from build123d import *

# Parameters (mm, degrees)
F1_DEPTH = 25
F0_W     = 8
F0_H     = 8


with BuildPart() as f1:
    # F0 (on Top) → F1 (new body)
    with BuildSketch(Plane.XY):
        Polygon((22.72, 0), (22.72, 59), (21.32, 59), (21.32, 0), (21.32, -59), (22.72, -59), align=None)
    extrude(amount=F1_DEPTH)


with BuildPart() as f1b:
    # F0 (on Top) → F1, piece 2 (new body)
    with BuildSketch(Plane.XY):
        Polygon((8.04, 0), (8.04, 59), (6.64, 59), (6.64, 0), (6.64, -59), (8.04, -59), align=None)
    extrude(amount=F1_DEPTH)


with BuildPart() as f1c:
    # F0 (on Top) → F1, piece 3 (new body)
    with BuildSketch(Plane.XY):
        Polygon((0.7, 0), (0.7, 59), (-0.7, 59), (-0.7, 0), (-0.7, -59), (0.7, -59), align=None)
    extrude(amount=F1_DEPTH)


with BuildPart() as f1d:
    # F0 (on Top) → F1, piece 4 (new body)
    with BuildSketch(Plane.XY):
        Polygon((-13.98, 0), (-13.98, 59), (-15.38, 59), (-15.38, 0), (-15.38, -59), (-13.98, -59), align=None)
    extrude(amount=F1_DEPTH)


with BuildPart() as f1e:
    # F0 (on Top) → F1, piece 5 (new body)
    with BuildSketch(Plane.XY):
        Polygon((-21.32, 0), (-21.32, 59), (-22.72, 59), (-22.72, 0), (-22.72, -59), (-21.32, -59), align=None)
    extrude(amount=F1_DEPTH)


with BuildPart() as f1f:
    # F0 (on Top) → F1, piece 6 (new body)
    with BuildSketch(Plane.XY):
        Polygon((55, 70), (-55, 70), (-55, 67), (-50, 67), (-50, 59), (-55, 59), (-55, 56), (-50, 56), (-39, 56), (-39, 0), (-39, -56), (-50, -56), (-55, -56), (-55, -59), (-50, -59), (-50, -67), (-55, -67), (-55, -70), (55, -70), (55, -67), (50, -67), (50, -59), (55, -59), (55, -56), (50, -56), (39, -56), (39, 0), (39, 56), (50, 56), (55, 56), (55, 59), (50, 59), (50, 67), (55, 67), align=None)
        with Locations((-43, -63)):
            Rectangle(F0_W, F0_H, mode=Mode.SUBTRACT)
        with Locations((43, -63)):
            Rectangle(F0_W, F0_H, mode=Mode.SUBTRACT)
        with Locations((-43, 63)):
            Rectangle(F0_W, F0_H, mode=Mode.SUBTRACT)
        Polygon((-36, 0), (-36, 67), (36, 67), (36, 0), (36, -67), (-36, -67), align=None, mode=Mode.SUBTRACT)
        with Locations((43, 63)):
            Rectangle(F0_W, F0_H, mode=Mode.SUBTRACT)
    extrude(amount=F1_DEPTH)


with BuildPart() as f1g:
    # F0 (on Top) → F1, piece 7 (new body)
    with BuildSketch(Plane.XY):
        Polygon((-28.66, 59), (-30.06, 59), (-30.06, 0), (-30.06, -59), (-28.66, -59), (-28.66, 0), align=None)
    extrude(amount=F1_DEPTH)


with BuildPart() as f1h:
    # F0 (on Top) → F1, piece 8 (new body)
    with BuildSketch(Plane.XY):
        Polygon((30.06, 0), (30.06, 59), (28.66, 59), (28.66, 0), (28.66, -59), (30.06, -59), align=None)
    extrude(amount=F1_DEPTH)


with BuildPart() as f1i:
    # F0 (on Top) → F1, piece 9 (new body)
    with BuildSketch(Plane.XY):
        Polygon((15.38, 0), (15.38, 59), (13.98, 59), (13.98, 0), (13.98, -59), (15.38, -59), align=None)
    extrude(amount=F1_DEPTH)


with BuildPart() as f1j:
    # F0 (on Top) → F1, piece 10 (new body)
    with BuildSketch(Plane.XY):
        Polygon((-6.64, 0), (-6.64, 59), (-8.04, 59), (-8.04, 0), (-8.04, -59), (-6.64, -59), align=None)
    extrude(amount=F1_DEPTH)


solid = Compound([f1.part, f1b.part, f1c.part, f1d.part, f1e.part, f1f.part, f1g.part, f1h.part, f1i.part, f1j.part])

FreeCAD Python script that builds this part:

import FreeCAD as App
import Part
import Sketcher

V = App.Vector
Q = App.Units.Quantity


def add_polygon(sketch, points):
    """Adds a closed chain of lines whose ends are joined by coincident constraints."""
    first, n = sketch.GeometryCount, len(points)
    for a, b in zip(points, points[1:] + points[:1]):
        sketch.addGeometry(Part.LineSegment(App.Vector(*a, 0), App.Vector(*b, 0)), False)
    for i in range(n):
        sketch.addConstraint(Sketcher.Constraint("Coincident", first + i, 2, first + (i + 1) % n, 1))

doc = App.newDocument("Part")
body = doc.addObject("PartDesign::Body", "Body")

# Sketch on XY plane
sketch1 = body.newObject("Sketcher::SketchObject", "Sketch")
sketch1.AttachmentSupport = (doc.getObject("XY_Plane"), [""])
sketch1.MapMode = "FlatFace"
add_polygon(sketch1, [(22.72, 59), (21.32, 59), (21.32, -59), (22.72, -59)])  # lines 0-3
sketch1.addConstraint(Sketcher.Constraint("Horizontal", 0))
sketch1.addConstraint(Sketcher.Constraint("Vertical", 1))
sketch1.addConstraint(Sketcher.Constraint("Horizontal", 2))
sketch1.addConstraint(Sketcher.Constraint("Vertical", 3))
sketch1.addConstraint(Sketcher.Constraint("DistanceY", 1, 2, 1, 1, Q("118 mm")))
sketch1.addConstraint(Sketcher.Constraint("DistanceX", 0, 2, 0, 1, Q("1.4 mm")))
sketch1.addConstraint(Sketcher.Constraint("DistanceY", -1, 1, 0, 2, Q("59 mm")))
sketch1.addConstraint(Sketcher.Constraint("DistanceX", -1, 1, 0, 2, Q("21.32 mm")))
pad1 = body.newObject("PartDesign::Pad", "Pad")
pad1.Profile = sketch1
pad1.Length = 25
body2 = doc.addObject("PartDesign::Body", "Body001")

# Sketch on XY plane
sketch2 = body2.newObject("Sketcher::SketchObject", "Sketch001")
sketch2.AttachmentSupport = (doc.getObject("XY_Plane001"), [""])
sketch2.MapMode = "FlatFace"
add_polygon(sketch2, [(8.04, 59), (6.64, 59), (6.64, -59), (8.04, -59)])  # lines 0-3
sketch2.addConstraint(Sketcher.Constraint("Horizontal", 0))
sketch2.addConstraint(Sketcher.Constraint("Vertical", 1))
sketch2.addConstraint(Sketcher.Constraint("Horizontal", 2))
sketch2.addConstraint(Sketcher.Constraint("Vertical", 3))
sketch2.addConstraint(Sketcher.Constraint("DistanceY", 1, 2, 1, 1, Q("118 mm")))
sketch2.addConstraint(Sketcher.Constraint("DistanceX", 0, 2, 0, 1, Q("1.4 mm")))
sketch2.addConstraint(Sketcher.Constraint("DistanceY", -1, 1, 0, 2, Q("59 mm")))
sketch2.addConstraint(Sketcher.Constraint("DistanceX", -1, 1, 0, 2, Q("6.64 mm")))
pad2 = body2.newObject("PartDesign::Pad", "Pad001")
pad2.Profile = sketch2
pad2.Length = 25
body3 = doc.addObject("PartDesign::Body", "Body002")

# Sketch on XY plane
sketch3 = body3.newObject("Sketcher::SketchObject", "Sketch002")
sketch3.AttachmentSupport = (doc.getObject("XY_Plane002"), [""])
sketch3.MapMode = "FlatFace"
add_polygon(sketch3, [(0.7, 59), (-0.7, 59), (-0.7, -59), (0.7, -59)])  # lines 0-3
sketch3.addConstraint(Sketcher.Constraint("Horizontal", 0))
sketch3.addConstraint(Sketcher.Constraint("Vertical", 1))
sketch3.addConstraint(Sketcher.Constraint("Horizontal", 2))
sketch3.addConstraint(Sketcher.Constraint("Vertical", 3))
sketch3.addConstraint(Sketcher.Constraint("Symmetric", 0, 2, 2, 2, -1, 1))
sketch3.addConstraint(Sketcher.Constraint("DistanceY", 1, 2, 1, 1, Q("118 mm")))
sketch3.addConstraint(Sketcher.Constraint("DistanceX", 0, 2, 0, 1, Q("1.4 mm")))
pad3 = body3.newObject("PartDesign::Pad", "Pad002")
pad3.Profile = sketch3
pad3.Length = 25
body4 = doc.addObject("PartDesign::Body", "Body003")

# Sketch on XY plane
sketch4 = body4.newObject("Sketcher::SketchObject", "Sketch003")
sketch4.AttachmentSupport = (doc.getObject("XY_Plane003"), [""])
sketch4.MapMode = "FlatFace"
add_polygon(sketch4, [(-13.98, 59), (-15.38, 59), (-15.38, -59), (-13.98, -59)])  # lines 0-3
sketch4.addConstraint(Sketcher.Constraint("Horizontal", 0))
sketch4.addConstraint(Sketcher.Constraint("Vertical", 1))
sketch4.addConstraint(Sketcher.Constraint("Horizontal", 2))
sketch4.addConstraint(Sketcher.Constraint("Vertical", 3))
sketch4.addConstraint(Sketcher.Constraint("DistanceY", 1, 2, 1, 1, Q("118 mm")))
sketch4.addConstraint(Sketcher.Constraint("DistanceX", 0, 2, 0, 1, Q("1.4 mm")))
sketch4.addConstraint(Sketcher.Constraint("DistanceY", -1, 1, 0, 2, Q("59 mm")))
sketch4.addConstraint(Sketcher.Constraint("DistanceX", 0, 2, -1, 1, Q("15.38 mm")))
pad4 = body4.newObject("PartDesign::Pad", "Pad003")
pad4.Profile = sketch4
pad4.Length = 25
body5 = doc.addObject("PartDesign::Body", "Body004")

# Sketch on XY plane
sketch5 = body5.newObject("Sketcher::SketchObject", "Sketch004")
sketch5.AttachmentSupport = (doc.getObject("XY_Plane004"), [""])
sketch5.MapMode = "FlatFace"
add_polygon(sketch5, [(-21.32, 59), (-22.72, 59), (-22.72, -59), (-21.32, -59)])  # lines 0-3
sketch5.addConstraint(Sketcher.Constraint("Horizontal", 0))
sketch5.addConstraint(Sketcher.Constraint("Vertical", 1))
sketch5.addConstraint(Sketcher.Constraint("Horizontal", 2))
sketch5.addConstraint(Sketcher.Constraint("Vertical", 3))
sketch5.addConstraint(Sketcher.Constraint("DistanceY", 1, 2, 1, 1, Q("118 mm")))
sketch5.addConstraint(Sketcher.Constraint("DistanceX", 0, 2, 0, 1, Q("1.4 mm")))
sketch5.addConstraint(Sketcher.Constraint("DistanceY", -1, 1, 0, 2, Q("59 mm")))
sketch5.addConstraint(Sketcher.Constraint("DistanceX", 0, 2, -1, 1, Q("22.72 mm")))
pad5 = body5.newObject("PartDesign::Pad", "Pad004")
pad5.Profile = sketch5
pad5.Length = 25
body6 = doc.addObject("PartDesign::Body", "Body005")

# Sketch on XY plane
sketch6 = body6.newObject("Sketcher::SketchObject", "Sketch005")
sketch6.AttachmentSupport = (doc.getObject("XY_Plane005"), [""])
sketch6.MapMode = "FlatFace"
add_polygon(sketch6, [(55, 70), (-55, 70), (-55, 67), (-50, 67), (-50, 59), (-55, 59), (-55, 56), (-39, 56), (-39, -56), (-55, -56), (-55, -59), (-50, -59), (-50, -67), (-55, -67), (-55, -70), (55, -70), (55, -67), (50, -67), (50, -59), (55, -59), (55, -56), (39, -56), (39, 56), (55, 56), (55, 59), (50, 59), (50, 67), (55, 67)])  # lines 0-27
add_polygon(sketch6, [(-39, -67), (-47, -67), (-47, -59), (-39, -59)])  # lines 28-31
add_polygon(sketch6, [(47, -67), (39, -67), (39, -59), (47, -59)])  # lines 32-35
add_polygon(sketch6, [(-39, 59), (-47, 59), (-47, 67), (-39, 67)])  # lines 36-39
add_polygon(sketch6, [(-36, -67), (-36, 67), (36, 67), (36, -67)])  # lines 40-43
add_polygon(sketch6, [(47, 59), (39, 59), (39, 67), (47, 67)])  # lines 44-47
sketch6.addConstraint(Sketcher.Constraint("Horizontal", 0))
sketch6.addConstraint(Sketcher.Constraint("Vertical", 1))
sketch6.addConstraint(Sketcher.Constraint("Horizontal", 2))
sketch6.addConstraint(Sketcher.Constraint("Vertical", 3))
sketch6.addConstraint(Sketcher.Constraint("Horizontal", 4))
sketch6.addConstraint(Sketcher.Constraint("Vertical", 5))
sketch6.addConstraint(Sketcher.Constraint("Horizontal", 6))
sketch6.addConstraint(Sketcher.Constraint("Vertical", 7))
sketch6.addConstraint(Sketcher.Constraint("Horizontal", 8))
sketch6.addConstraint(Sketcher.Constraint("Vertical", 9))
sketch6.addConstraint(Sketcher.Constraint("Horizontal", 10))
sketch6.addConstraint(Sketcher.Constraint("Vertical", 11))
sketch6.addConstraint(Sketcher.Constraint("Horizontal", 12))
sketch6.addConstraint(Sketcher.Constraint("Vertical", 13))
sketch6.addConstraint(Sketcher.Constraint("Horizontal", 14))
sketch6.addConstraint(Sketcher.Constraint("Vertical", 15))
sketch6.addConstraint(Sketcher.Constraint("Horizontal", 16))
sketch6.addConstraint(Sketcher.Constraint("Vertical", 17))
sketch6.addConstraint(Sketcher.Constraint("Horizontal", 18))
sketch6.addConstraint(Sketcher.Constraint("Vertical", 19))
sketch6.addConstraint(Sketcher.Constraint("Horizontal", 20))
sketch6.addConstraint(Sketcher.Constraint("Vertical", 21))
sketch6.addConstraint(Sketcher.Constraint("Horizontal", 22))
sketch6.addConstraint(Sketcher.Constraint("Vertical", 23))
sketch6.addConstraint(Sketcher.Constraint("Horizontal", 24))
sketch6.addConstraint(Sketcher.Constraint("Vertical", 25))
sketch6.addConstraint(Sketcher.Constraint("Horizontal", 26))
sketch6.addConstraint(Sketcher.Constraint("Vertical", 27))
sketch6.addConstraint(Sketcher.Constraint("Horizontal", 28))
sketch6.addConstraint(Sketcher.Constraint("Vertical", 29))
sketch6.addConstraint(Sketcher.Constraint("Horizontal", 30))
sketch6.addConstraint(Sketcher.Constraint("Vertical", 31))
sketch6.addConstraint(Sketcher.Constraint("Horizontal", 32))
sketch6.addConstraint(Sketcher.Constraint("Vertical", 33))
sketch6.addConstraint(Sketcher.Constraint("Horizontal", 34))
sketch6.addConstraint(Sketcher.Constraint("Vertical", 35))
sketch6.addConstraint(Sketcher.Constraint("Horizontal", 36))
sketch6.addConstraint(Sketcher.Constraint("Vertical", 37))
sketch6.addConstraint(Sketcher.Constraint("Horizontal", 38))
sketch6.addConstraint(Sketcher.Constraint("Vertical", 39))
sketch6.addConstraint(Sketcher.Constraint("Vertical", 40))
sketch6.addConstraint(Sketcher.Constraint("Horizontal", 41))
sketch6.addConstraint(Sketcher.Constraint("Vertical", 42))
sketch6.addConstraint(Sketcher.Constraint("Horizontal", 43))
sketch6.addConstraint(Sketcher.Constraint("Horizontal", 44))
sketch6.addConstraint(Sketcher.Constraint("Vertical", 45))
sketch6.addConstraint(Sketcher.Constraint("Horizontal", 46))
sketch6.addConstraint(Sketcher.Constraint("Vertical", 47))
sketch6.addConstraint(Sketcher.Constraint("Symmetric", 0, 2, 14, 2, -1, 1))
sketch6.addConstraint(Sketcher.Constraint("Symmetric", 2, 2, 16, 2, -1, 1))
sketch6.addConstraint(Sketcher.Constraint("Symmetric", 4, 2, 18, 2, -1, 1))
sketch6.addConstraint(Sketcher.Constraint("Symmetric", 6, 2, 20, 2, -1, 1))
sketch6.addConstraint(Sketcher.Constraint("Symmetric", 8, 2, 22, 2, -1, 1))
sketch6.addConstraint(Sketcher.Constraint("Symmetric", 10, 2, 24, 2, -1, 1))
sketch6.addConstraint(Sketcher.Constraint("Symmetric", 12, 2, 26, 2, -1, 1))
sketch6.addConstraint(Sketcher.Constraint("Symmetric", 34, 2, 36, 2, -1, 1))
sketch6.addConstraint(Sketcher.Constraint("Symmetric", 32, 2, 38, 2, -1, 1))
sketch6.addConstraint(Sketcher.Constraint("Symmetric", 40, 2, 42, 2, -1, 1))
sketch6.addConstraint(Sketcher.Constraint("Symmetric", 30, 2, 44, 2, -1, 1))
sketch6.addConstraint(Sketcher.Constraint("Symmetric", 28, 2, 46, 2, -1, 1))
sketch6.addConstraint(Sketcher.Constraint("Symmetric", 12, 2, 15, 2, -2))
sketch6.addConstraint(Sketcher.Constraint("Symmetric", 10, 2, 17, 2, -2))
sketch6.addConstraint(Sketcher.Constraint("Symmetric", 8, 2, 19, 2, -2))
sketch6.addConstraint(Sketcher.Constraint("Symmetric", 31, 2, 32, 2, -2))
sketch6.addConstraint(Sketcher.Constraint("Symmetric", 29, 2, 34, 2, -2))
sketch6.addConstraint(Sketcher.Constraint("Horizontal", 16, 2, 28, 2))
sketch6.addConstraint(Sketcher.Constraint("Horizontal", 18, 2, 29, 2))
sketch6.addConstraint(Sketcher.Constraint("Horizontal", 38, 2, 40, 2))
sketch6.addConstraint(Sketcher.Constraint("Vertical", 1, 2, 4, 2))
sketch6.addConstraint(Sketcher.Constraint("Vertical", 7, 2, 30, 2))
sketch6.addConstraint(Sketcher.Constraint("Equal", 46, 3))
sketch6.addConstraint(Sketcher.Constraint("Equal", 1, 5))
sketch6.addConstraint(Sketcher.Constraint("DistanceX", 0, 2, 0, 1, Q("110 mm")))
sketch6.addConstraint(Sketcher.Constraint("DistanceX", 2, 1, 2, 2, Q("5 mm")))
sketch6.addConstraint(Sketcher.Constraint("DistanceX", 6, 1, 6, 2, Q("16 mm")))
sketch6.addConstraint(Sketcher.Constraint("DistanceX", 28, 2, 28, 1, Q("8 mm")))
sketch6.addConstraint(Sketcher.Constraint("DistanceX", 41, 1, 41, 2, Q("72 mm")))
sketch6.addConstraint(Sketcher.Constraint("DistanceY", 1, 2, 1, 1, Q("3 mm")))
sketch6.addConstraint(Sketcher.Constraint("DistanceY", 7, 2, 7, 1, Q("112 mm")))
pad6 = body6.newObject("PartDesign::Pad", "Pad005")
pad6.Profile = sketch6
pad6.Length = 25
body7 = doc.addObject("PartDesign::Body", "Body006")

# Sketch on XY plane
sketch7 = body7.newObject("Sketcher::SketchObject", "Sketch006")
sketch7.AttachmentSupport = (doc.getObject("XY_Plane006"), [""])
sketch7.MapMode = "FlatFace"
add_polygon(sketch7, [(-28.66, 59), (-30.06, 59), (-30.06, -59), (-28.66, -59)])  # lines 0-3
sketch7.addConstraint(Sketcher.Constraint("Horizontal", 0))
sketch7.addConstraint(Sketcher.Constraint("Vertical", 1))
sketch7.addConstraint(Sketcher.Constraint("Horizontal", 2))
sketch7.addConstraint(Sketcher.Constraint("Vertical", 3))
sketch7.addConstraint(Sketcher.Constraint("DistanceY", 1, 2, 1, 1, Q("118 mm")))
sketch7.addConstraint(Sketcher.Constraint("DistanceX", 0, 2, 0, 1, Q("1.4 mm")))
sketch7.addConstraint(Sketcher.Constraint("DistanceY", -1, 1, 0, 2, Q("59 mm")))
sketch7.addConstraint(Sketcher.Constraint("DistanceX", 0, 2, -1, 1, Q("30.06 mm")))
pad7 = body7.newObject("PartDesign::Pad", "Pad006")
pad7.Profile = sketch7
pad7.Length = 25
body8 = doc.addObject("PartDesign::Body", "Body007")

# Sketch on XY plane
sketch8 = body8.newObject("Sketcher::SketchObject", "Sketch007")
sketch8.AttachmentSupport = (doc.getObject("XY_Plane007"), [""])
sketch8.MapMode = "FlatFace"
add_polygon(sketch8, [(30.06, 59), (28.66, 59), (28.66, -59), (30.06, -59)])  # lines 0-3
sketch8.addConstraint(Sketcher.Constraint("Horizontal", 0))
sketch8.addConstraint(Sketcher.Constraint("Vertical", 1))
sketch8.addConstraint(Sketcher.Constraint("Horizontal", 2))
sketch8.addConstraint(Sketcher.Constraint("Vertical", 3))
sketch8.addConstraint(Sketcher.Constraint("DistanceY", 1, 2, 1, 1, Q("118 mm")))
sketch8.addConstraint(Sketcher.Constraint("DistanceX", 0, 2, 0, 1, Q("1.4 mm")))
sketch8.addConstraint(Sketcher.Constraint("DistanceY", -1, 1, 0, 2, Q("59 mm")))
sketch8.addConstraint(Sketcher.Constraint("DistanceX", -1, 1, 0, 2, Q("28.66 mm")))
pad8 = body8.newObject("PartDesign::Pad", "Pad007")
pad8.Profile = sketch8
pad8.Length = 25
body9 = doc.addObject("PartDesign::Body", "Body008")

# Sketch on XY plane
sketch9 = body9.newObject("Sketcher::SketchObject", "Sketch008")
sketch9.AttachmentSupport = (doc.getObject("XY_Plane008"), [""])
sketch9.MapMode = "FlatFace"
add_polygon(sketch9, [(15.38, 59), (13.98, 59), (13.98, -59), (15.38, -59)])  # lines 0-3
sketch9.addConstraint(Sketcher.Constraint("Horizontal", 0))
sketch9.addConstraint(Sketcher.Constraint("Vertical", 1))
sketch9.addConstraint(Sketcher.Constraint("Horizontal", 2))
sketch9.addConstraint(Sketcher.Constraint("Vertical", 3))
sketch9.addConstraint(Sketcher.Constraint("DistanceY", 1, 2, 1, 1, Q("118 mm")))
sketch9.addConstraint(Sketcher.Constraint("DistanceX", 0, 2, 0, 1, Q("1.4 mm")))
sketch9.addConstraint(Sketcher.Constraint("DistanceY", -1, 1, 0, 2, Q("59 mm")))
sketch9.addConstraint(Sketcher.Constraint("DistanceX", -1, 1, 0, 2, Q("13.98 mm")))
pad9 = body9.newObject("PartDesign::Pad", "Pad008")
pad9.Profile = sketch9
pad9.Length = 25
body10 = doc.addObject("PartDesign::Body", "Body009")

# Sketch on XY plane
sketch10 = body10.newObject("Sketcher::SketchObject", "Sketch009")
sketch10.AttachmentSupport = (doc.getObject("XY_Plane009"), [""])
sketch10.MapMode = "FlatFace"
add_polygon(sketch10, [(-6.64, 59), (-8.04, 59), (-8.04, -59), (-6.64, -59)])  # lines 0-3
sketch10.addConstraint(Sketcher.Constraint("Horizontal", 0))
sketch10.addConstraint(Sketcher.Constraint("Vertical", 1))
sketch10.addConstraint(Sketcher.Constraint("Horizontal", 2))
sketch10.addConstraint(Sketcher.Constraint("Vertical", 3))
sketch10.addConstraint(Sketcher.Constraint("DistanceY", 1, 2, 1, 1, Q("118 mm")))
sketch10.addConstraint(Sketcher.Constraint("DistanceX", 0, 2, 0, 1, Q("1.4 mm")))
sketch10.addConstraint(Sketcher.Constraint("DistanceY", -1, 1, 0, 2, Q("59 mm")))
sketch10.addConstraint(Sketcher.Constraint("DistanceX", 0, 2, -1, 1, Q("8.04 mm")))
pad10 = body10.newObject("PartDesign::Pad", "Pad009")
pad10.Profile = sketch10
pad10.Length = 25

doc.recompute()
